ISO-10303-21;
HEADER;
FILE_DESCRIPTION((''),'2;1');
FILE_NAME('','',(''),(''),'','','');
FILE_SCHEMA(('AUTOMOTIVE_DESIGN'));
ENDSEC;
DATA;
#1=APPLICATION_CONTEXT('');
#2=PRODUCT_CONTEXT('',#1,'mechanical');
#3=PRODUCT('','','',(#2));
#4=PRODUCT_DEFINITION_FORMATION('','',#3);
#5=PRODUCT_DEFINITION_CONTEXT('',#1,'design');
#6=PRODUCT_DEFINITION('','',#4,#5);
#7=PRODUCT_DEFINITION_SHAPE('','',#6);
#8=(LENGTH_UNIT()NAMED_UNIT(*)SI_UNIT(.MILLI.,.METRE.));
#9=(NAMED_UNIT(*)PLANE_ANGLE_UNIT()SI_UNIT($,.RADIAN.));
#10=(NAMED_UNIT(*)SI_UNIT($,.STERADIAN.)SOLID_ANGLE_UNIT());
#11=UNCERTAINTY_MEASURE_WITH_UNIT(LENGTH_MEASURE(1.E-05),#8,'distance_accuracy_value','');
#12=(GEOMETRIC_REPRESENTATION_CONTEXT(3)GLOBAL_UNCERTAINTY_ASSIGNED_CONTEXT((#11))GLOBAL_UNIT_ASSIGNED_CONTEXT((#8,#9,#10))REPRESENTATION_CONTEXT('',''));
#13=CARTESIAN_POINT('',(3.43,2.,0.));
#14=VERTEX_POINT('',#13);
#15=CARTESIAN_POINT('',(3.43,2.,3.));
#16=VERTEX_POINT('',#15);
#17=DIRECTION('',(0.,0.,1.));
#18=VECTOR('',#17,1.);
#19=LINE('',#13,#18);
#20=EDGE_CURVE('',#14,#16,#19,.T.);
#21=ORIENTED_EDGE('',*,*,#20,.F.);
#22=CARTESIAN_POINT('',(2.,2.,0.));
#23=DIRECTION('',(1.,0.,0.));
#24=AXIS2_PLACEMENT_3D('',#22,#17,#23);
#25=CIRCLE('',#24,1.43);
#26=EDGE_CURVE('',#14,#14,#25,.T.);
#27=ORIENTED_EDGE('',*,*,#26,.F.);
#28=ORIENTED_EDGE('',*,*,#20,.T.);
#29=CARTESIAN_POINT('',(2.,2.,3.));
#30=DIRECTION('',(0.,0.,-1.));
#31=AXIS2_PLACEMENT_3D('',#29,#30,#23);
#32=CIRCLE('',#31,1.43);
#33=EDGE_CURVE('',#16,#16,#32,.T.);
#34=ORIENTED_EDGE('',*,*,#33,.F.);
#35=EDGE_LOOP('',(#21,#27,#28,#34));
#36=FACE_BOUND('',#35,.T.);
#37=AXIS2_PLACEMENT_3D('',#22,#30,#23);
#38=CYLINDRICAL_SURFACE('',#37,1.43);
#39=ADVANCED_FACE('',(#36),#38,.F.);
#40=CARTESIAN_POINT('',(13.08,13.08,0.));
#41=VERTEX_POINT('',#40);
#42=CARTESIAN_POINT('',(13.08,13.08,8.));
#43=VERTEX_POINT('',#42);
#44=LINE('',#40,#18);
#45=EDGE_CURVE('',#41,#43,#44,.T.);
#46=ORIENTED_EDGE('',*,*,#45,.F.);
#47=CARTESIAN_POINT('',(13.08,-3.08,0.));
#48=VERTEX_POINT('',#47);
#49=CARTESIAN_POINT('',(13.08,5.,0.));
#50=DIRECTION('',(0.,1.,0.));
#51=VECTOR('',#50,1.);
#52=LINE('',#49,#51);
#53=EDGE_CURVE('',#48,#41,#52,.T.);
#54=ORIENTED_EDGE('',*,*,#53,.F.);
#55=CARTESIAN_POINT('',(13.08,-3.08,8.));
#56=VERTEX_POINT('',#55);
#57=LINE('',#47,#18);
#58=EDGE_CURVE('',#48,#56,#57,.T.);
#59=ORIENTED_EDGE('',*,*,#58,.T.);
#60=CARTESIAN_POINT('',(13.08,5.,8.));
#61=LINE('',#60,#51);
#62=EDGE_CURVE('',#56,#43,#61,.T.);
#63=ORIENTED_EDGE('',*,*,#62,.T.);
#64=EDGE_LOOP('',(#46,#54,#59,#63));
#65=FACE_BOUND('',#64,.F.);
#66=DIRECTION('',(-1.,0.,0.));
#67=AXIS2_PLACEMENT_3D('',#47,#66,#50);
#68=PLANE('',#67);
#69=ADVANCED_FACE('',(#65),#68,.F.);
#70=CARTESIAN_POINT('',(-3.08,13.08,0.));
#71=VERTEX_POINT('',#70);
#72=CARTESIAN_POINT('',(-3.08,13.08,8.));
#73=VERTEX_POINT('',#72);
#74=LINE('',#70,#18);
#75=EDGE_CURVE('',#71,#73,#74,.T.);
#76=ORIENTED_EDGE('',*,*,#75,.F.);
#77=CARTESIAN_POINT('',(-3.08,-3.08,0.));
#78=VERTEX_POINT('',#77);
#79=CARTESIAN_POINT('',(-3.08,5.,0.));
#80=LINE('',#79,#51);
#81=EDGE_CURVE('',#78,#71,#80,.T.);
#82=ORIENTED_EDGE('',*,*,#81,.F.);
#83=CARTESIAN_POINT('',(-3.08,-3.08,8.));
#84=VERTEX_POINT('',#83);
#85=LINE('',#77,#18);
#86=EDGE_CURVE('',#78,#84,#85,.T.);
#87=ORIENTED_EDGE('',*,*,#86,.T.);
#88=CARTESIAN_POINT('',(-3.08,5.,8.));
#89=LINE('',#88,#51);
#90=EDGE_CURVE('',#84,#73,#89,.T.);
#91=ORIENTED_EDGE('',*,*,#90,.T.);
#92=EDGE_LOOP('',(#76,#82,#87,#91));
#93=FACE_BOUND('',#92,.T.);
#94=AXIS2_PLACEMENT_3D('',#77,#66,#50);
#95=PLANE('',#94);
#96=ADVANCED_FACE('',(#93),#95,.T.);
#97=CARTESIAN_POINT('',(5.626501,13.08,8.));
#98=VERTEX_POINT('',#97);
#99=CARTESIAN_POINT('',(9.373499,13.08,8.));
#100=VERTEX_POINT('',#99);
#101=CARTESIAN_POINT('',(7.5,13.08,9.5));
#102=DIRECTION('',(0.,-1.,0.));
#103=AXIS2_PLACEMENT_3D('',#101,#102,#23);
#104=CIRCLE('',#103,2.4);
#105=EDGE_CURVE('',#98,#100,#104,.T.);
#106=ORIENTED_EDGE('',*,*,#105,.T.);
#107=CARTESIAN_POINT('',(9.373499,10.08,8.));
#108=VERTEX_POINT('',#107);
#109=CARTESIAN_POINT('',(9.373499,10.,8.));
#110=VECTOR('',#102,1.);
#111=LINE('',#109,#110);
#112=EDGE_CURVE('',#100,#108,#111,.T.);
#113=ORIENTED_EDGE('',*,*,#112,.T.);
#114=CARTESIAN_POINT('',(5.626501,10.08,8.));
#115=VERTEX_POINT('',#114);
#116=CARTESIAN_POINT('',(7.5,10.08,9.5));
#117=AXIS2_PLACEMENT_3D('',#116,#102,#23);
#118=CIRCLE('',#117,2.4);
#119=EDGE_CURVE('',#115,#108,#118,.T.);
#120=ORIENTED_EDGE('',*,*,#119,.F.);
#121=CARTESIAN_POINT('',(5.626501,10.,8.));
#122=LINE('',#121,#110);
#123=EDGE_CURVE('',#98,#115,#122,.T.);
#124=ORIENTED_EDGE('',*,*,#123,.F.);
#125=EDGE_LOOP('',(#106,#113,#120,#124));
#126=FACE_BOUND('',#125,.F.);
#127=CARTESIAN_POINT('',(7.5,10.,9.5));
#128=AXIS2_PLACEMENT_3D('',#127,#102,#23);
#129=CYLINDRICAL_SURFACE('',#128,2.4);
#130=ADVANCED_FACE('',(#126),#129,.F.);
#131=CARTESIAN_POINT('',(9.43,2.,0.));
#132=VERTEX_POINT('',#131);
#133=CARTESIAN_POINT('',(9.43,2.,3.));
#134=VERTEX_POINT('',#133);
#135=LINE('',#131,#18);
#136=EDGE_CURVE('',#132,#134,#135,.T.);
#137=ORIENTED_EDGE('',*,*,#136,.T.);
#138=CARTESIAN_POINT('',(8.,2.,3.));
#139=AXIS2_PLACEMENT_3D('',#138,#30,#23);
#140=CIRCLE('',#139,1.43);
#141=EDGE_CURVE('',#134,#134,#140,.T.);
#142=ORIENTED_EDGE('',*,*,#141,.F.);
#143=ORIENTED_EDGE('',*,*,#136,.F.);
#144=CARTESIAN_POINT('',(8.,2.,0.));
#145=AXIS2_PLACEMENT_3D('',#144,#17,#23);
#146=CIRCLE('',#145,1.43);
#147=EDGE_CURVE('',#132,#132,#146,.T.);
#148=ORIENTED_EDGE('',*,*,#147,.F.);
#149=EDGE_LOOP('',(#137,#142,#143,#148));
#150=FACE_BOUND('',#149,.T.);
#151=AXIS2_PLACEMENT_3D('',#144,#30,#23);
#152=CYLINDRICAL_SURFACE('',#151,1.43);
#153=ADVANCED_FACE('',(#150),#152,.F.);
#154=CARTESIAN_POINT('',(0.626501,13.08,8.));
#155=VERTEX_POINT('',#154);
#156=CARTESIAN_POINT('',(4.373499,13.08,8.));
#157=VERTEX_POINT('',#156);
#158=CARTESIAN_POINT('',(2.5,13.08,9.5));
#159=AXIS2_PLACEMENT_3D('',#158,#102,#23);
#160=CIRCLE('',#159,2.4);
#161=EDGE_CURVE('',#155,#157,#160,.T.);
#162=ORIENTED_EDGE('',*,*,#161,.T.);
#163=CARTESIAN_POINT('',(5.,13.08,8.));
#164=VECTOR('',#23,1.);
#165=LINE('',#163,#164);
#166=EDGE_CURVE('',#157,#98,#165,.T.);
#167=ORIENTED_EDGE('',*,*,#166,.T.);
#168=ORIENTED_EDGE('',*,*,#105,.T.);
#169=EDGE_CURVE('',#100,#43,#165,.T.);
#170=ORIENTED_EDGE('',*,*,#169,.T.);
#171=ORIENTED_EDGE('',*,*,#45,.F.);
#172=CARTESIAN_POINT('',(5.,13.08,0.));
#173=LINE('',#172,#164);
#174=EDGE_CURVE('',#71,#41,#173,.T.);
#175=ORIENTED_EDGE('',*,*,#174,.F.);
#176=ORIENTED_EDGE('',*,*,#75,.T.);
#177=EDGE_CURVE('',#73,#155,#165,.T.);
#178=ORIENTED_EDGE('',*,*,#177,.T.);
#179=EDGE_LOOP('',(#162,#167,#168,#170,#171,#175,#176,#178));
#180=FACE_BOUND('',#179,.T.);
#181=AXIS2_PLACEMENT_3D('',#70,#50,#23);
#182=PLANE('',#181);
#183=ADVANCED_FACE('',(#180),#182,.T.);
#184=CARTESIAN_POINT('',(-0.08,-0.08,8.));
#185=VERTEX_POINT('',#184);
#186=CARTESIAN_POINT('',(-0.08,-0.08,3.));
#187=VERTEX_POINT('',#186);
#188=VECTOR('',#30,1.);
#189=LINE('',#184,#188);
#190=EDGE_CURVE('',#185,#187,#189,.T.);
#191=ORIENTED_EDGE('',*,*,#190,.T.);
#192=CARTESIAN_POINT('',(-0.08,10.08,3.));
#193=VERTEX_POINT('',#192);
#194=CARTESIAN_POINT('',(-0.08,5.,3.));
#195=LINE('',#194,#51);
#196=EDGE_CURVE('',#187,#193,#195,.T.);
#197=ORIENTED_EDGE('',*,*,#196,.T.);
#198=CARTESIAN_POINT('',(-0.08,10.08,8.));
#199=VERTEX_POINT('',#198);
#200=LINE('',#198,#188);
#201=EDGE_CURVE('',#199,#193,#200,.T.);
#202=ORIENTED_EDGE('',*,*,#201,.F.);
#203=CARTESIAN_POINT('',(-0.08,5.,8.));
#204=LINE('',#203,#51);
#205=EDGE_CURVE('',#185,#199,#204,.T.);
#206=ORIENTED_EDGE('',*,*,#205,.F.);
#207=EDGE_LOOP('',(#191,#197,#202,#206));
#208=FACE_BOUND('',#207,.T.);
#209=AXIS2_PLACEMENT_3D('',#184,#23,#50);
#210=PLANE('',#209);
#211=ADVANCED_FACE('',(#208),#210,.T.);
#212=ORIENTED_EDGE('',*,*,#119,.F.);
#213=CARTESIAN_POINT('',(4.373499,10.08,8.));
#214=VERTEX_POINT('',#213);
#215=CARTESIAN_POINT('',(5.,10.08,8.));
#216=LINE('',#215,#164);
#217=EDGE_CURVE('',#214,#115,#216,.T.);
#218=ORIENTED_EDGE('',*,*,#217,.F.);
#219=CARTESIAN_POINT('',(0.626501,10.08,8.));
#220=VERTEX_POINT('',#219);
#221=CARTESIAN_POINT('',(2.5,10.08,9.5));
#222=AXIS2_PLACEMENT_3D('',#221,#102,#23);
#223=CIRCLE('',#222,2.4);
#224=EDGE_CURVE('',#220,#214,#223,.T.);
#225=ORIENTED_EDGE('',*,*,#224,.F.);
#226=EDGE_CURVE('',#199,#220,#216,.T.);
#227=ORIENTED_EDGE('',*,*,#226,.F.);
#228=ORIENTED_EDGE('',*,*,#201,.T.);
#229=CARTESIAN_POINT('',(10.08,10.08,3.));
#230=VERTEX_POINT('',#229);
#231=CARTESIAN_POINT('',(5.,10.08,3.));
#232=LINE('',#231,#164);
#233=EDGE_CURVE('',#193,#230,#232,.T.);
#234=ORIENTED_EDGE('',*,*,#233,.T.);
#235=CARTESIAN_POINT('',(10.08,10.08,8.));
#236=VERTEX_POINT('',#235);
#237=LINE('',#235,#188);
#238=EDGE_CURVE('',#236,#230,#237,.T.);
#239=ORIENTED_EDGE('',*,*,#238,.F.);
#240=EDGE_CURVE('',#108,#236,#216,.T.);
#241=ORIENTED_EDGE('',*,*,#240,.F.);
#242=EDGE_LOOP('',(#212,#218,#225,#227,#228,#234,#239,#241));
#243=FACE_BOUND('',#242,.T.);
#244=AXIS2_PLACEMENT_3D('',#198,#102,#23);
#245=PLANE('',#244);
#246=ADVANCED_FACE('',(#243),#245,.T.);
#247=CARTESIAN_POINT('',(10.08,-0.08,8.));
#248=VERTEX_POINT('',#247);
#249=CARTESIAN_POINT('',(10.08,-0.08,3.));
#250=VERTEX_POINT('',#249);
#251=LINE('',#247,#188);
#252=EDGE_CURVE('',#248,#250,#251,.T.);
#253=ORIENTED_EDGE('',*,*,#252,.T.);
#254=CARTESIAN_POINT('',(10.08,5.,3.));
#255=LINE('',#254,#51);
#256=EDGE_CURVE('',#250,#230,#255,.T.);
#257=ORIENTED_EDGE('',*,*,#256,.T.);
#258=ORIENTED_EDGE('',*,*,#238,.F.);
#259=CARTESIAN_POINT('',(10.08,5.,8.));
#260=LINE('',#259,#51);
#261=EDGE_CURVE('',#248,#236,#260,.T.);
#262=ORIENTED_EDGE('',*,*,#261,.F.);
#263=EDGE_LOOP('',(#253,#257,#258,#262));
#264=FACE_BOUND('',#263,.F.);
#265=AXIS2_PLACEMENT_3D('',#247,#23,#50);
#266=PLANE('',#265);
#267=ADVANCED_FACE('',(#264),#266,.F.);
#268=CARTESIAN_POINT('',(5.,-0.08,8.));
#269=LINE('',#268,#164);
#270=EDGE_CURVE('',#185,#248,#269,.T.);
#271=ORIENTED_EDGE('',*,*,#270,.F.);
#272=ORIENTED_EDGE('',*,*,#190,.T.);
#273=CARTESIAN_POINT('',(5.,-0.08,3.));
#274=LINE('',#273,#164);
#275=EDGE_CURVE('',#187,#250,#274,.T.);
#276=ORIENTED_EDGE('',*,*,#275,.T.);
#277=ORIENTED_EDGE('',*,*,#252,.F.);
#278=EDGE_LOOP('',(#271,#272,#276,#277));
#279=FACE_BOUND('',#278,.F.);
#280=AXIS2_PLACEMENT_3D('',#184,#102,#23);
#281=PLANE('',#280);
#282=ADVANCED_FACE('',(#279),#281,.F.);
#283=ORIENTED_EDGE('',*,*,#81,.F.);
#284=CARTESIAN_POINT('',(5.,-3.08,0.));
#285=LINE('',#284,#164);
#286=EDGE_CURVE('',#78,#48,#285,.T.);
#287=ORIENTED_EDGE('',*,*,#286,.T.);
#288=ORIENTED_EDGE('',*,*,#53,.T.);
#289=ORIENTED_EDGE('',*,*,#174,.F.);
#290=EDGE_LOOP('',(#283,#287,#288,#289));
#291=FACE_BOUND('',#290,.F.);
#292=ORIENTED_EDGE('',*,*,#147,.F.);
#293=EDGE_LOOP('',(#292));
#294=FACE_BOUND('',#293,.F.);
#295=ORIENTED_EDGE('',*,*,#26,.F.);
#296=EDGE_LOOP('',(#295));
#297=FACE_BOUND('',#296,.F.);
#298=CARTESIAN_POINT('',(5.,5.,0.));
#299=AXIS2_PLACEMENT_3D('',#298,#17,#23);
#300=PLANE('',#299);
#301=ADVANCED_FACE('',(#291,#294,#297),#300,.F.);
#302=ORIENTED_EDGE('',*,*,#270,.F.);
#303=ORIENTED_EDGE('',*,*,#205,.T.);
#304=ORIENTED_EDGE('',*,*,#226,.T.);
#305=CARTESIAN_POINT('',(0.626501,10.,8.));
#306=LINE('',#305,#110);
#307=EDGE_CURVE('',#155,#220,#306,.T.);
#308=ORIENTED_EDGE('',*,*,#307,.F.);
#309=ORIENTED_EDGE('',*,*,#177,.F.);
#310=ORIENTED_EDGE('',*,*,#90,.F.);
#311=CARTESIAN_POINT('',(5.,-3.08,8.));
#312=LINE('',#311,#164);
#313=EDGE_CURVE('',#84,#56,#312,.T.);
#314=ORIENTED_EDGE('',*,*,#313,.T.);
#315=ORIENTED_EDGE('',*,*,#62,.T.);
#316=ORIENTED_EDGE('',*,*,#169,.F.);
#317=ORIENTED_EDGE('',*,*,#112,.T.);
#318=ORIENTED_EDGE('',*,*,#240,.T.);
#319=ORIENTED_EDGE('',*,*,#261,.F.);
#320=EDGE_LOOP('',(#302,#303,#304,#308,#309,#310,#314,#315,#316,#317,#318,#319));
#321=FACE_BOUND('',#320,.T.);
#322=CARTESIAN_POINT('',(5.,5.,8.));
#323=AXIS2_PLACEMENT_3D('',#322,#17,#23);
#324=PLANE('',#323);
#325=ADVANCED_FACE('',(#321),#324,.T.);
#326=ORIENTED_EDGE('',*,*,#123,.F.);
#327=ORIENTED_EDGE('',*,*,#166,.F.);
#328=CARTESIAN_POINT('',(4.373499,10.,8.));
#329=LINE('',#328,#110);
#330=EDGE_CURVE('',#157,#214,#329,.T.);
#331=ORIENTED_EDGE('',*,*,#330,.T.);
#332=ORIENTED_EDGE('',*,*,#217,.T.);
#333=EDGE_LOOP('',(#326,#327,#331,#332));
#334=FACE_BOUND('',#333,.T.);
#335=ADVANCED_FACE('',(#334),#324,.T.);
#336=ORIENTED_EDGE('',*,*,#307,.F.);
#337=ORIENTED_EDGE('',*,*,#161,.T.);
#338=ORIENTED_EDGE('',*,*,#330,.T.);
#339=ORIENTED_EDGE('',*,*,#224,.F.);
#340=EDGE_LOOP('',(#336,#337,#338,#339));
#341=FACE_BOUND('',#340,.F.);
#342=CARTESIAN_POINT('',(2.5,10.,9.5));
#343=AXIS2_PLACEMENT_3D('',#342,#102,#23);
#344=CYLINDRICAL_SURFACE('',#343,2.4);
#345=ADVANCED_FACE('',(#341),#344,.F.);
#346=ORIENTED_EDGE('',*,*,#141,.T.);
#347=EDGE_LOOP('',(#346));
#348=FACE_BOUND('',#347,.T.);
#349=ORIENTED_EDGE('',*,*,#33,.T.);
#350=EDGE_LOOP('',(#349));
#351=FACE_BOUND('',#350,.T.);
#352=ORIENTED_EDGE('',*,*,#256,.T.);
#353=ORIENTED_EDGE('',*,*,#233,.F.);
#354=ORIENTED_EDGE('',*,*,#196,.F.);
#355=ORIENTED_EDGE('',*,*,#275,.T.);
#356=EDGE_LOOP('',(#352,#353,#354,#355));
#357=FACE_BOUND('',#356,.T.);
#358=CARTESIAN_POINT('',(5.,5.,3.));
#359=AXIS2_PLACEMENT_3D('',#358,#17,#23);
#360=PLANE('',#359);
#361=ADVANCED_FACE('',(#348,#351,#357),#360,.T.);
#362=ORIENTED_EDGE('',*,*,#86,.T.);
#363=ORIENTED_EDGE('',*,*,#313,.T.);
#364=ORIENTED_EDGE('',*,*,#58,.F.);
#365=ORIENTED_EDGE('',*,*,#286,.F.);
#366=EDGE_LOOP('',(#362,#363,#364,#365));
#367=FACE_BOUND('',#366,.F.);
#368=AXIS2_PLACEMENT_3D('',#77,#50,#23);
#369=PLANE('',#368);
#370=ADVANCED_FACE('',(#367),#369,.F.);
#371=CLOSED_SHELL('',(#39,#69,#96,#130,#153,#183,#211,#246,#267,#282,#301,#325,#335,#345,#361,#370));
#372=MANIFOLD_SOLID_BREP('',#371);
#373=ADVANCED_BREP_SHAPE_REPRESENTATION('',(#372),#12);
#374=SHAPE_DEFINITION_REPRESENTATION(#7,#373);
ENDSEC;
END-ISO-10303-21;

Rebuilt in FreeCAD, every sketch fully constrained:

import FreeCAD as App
import Part
import Sketcher


def add_polygon(sketch, points):
    """Adds a closed chain of lines whose ends are joined by coincident constraints."""
    first, n = sketch.GeometryCount, len(points)
    for a, b in zip(points, points[1:] + points[:1]):
        sketch.addGeometry(Part.LineSegment(App.Vector(*a, 0), App.Vector(*b, 0)), False)
    for i in range(n):
        sketch.addConstraint(Sketcher.Constraint("Coincident", first + i, 2, first + (i + 1) % n, 1))

doc = App.newDocument("Part")
body = doc.addObject("PartDesign::Body", "Body")

# Sketch on XY plane
sketch1 = doc.addObject("Sketcher::SketchObject", "Sketch")
body.addObject(sketch1)
sketch1.AttachmentSupport = (doc.XY_Plane, [""])
sketch1.MapMode = "FlatFace"
add_polygon(sketch1, [(-3.08, 13.08), (-3.08, -3.08), (13.08, -3.08), (13.08, 13.08)])  # lines 0-3
sketch1.addGeometry(Part.Circle(App.Vector(2, 2, 0), App.Vector(0, 0, 1), 1.43), False)  # 4
sketch1.addGeometry(Part.Circle(App.Vector(8, 2, 0), App.Vector(0, 0, 1), 1.43), False)  # 5
sketch1.addConstraint(Sketcher.Constraint("Vertical", 0))
sketch1.addConstraint(Sketcher.Constraint("Horizontal", 1))
sketch1.addConstraint(Sketcher.Constraint("Vertical", 2))
sketch1.addConstraint(Sketcher.Constraint("Horizontal", 3))
sketch1.addConstraint(Sketcher.Constraint("Equal", 4, 5))
sketch1.addConstraint(Sketcher.Constraint("Horizontal", 4, 3, 5, 3))
sketch1.addConstraint(Sketcher.Constraint("Equal", 3, 0))
sketch1.addConstraint(Sketcher.Constraint("Diameter", 4, 2.86))
sketch1.addConstraint(Sketcher.Constraint("DistanceX", -1, 1, 4, 3, 2.0))
sketch1.addConstraint(Sketcher.Constraint("DistanceY", -1, 1, 4, 3, 2.0))
sketch1.addConstraint(Sketcher.Constraint("DistanceX", -1, 1, 5, 3, 8.0))
sketch1.addConstraint(Sketcher.Constraint("DistanceX", 1, 1, 1, 2, 16.16))
sketch1.addConstraint(Sketcher.Constraint("DistanceX", 0, 2, -1, 1, 3.08))
sketch1.addConstraint(Sketcher.Constraint("DistanceY", 0, 2, -1, 1, 3.08))
pad1 = doc.addObject("PartDesign::Pad", "Pad")
body.addObject(pad1)
pad1.Profile = sketch1
pad1.Length = 8

# Sketch on XY plane
sketch2 = doc.addObject("Sketcher::SketchObject", "Sketch001")
body.addObject(sketch2)
sketch2.AttachmentSupport = (doc.XY_Plane, [""])
sketch2.MapMode = "FlatFace"
sketch2.AttachmentOffset = App.Placement(App.Vector(0, 0, 8), App.Rotation())
add_polygon(sketch2, [(-0.08, 10.08), (-0.08, -0.08), (10.08, -0.08), (10.08, 10.08)])  # lines 0-3
sketch2.addConstraint(Sketcher.Constraint("Vertical", 0))
sketch2.addConstraint(Sketcher.Constraint("Horizontal", 1))
sketch2.addConstraint(Sketcher.Constraint("Vertical", 2))
sketch2.addConstraint(Sketcher.Constraint("Horizontal", 3))
sketch2.addConstraint(Sketcher.Constraint("Equal", 3, 0))
sketch2.addConstraint(Sketcher.Constraint("DistanceX", 1, 1, 1, 2, 10.16))
sketch2.addConstraint(Sketcher.Constraint("DistanceX", 0, 2, -1, 1, 0.08))
sketch2.addConstraint(Sketcher.Constraint("DistanceY", 0, 2, -1, 1, 0.08))
pocket1 = doc.addObject("PartDesign::Pocket", "Pocket")
body.addObject(pocket1)
pocket1.Profile = sketch2
pocket1.Length = 5

# Sketch on XZ plane
sketch3 = doc.addObject("Sketcher::SketchObject", "Sketch002")
body.addObject(sketch3)
sketch3.AttachmentSupport = (doc.XZ_Plane, [""])
sketch3.MapMode = "FlatFace"
sketch3.AttachmentOffset = App.Placement(App.Vector(0, 0, -10), App.Rotation())
sketch3.addGeometry(Part.Circle(App.Vector(2.5, 9.5, 0), App.Vector(0, 0, 1), 2.4), False)
sketch3.addGeometry(Part.Circle(App.Vector(7.5, 9.5, 0), App.Vector(0, 0, 1), 2.4), False)
sketch3.addConstraint(Sketcher.Constraint("Equal", 0, 1))
sketch3.addConstraint(Sketcher.Constraint("Horizontal", 0, 3, 1, 3))
sketch3.addConstraint(Sketcher.Constraint("Diameter", 0, 4.8))
sketch3.addConstraint(Sketcher.Constraint("DistanceX", 0, 3, 1, 3, 5.0))
sketch3.addConstraint(Sketcher.Constraint("DistanceX", -1, 1, 0, 3, 2.5))
sketch3.addConstraint(Sketcher.Constraint("DistanceY", -1, 1, 0, 3, 9.5))
pocket2 = doc.addObject("PartDesign::Pocket", "Pocket001")
body.addObject(pocket2)
pocket2.Profile = sketch3
pocket2.Type = "ThroughAll"

doc.recompute()
